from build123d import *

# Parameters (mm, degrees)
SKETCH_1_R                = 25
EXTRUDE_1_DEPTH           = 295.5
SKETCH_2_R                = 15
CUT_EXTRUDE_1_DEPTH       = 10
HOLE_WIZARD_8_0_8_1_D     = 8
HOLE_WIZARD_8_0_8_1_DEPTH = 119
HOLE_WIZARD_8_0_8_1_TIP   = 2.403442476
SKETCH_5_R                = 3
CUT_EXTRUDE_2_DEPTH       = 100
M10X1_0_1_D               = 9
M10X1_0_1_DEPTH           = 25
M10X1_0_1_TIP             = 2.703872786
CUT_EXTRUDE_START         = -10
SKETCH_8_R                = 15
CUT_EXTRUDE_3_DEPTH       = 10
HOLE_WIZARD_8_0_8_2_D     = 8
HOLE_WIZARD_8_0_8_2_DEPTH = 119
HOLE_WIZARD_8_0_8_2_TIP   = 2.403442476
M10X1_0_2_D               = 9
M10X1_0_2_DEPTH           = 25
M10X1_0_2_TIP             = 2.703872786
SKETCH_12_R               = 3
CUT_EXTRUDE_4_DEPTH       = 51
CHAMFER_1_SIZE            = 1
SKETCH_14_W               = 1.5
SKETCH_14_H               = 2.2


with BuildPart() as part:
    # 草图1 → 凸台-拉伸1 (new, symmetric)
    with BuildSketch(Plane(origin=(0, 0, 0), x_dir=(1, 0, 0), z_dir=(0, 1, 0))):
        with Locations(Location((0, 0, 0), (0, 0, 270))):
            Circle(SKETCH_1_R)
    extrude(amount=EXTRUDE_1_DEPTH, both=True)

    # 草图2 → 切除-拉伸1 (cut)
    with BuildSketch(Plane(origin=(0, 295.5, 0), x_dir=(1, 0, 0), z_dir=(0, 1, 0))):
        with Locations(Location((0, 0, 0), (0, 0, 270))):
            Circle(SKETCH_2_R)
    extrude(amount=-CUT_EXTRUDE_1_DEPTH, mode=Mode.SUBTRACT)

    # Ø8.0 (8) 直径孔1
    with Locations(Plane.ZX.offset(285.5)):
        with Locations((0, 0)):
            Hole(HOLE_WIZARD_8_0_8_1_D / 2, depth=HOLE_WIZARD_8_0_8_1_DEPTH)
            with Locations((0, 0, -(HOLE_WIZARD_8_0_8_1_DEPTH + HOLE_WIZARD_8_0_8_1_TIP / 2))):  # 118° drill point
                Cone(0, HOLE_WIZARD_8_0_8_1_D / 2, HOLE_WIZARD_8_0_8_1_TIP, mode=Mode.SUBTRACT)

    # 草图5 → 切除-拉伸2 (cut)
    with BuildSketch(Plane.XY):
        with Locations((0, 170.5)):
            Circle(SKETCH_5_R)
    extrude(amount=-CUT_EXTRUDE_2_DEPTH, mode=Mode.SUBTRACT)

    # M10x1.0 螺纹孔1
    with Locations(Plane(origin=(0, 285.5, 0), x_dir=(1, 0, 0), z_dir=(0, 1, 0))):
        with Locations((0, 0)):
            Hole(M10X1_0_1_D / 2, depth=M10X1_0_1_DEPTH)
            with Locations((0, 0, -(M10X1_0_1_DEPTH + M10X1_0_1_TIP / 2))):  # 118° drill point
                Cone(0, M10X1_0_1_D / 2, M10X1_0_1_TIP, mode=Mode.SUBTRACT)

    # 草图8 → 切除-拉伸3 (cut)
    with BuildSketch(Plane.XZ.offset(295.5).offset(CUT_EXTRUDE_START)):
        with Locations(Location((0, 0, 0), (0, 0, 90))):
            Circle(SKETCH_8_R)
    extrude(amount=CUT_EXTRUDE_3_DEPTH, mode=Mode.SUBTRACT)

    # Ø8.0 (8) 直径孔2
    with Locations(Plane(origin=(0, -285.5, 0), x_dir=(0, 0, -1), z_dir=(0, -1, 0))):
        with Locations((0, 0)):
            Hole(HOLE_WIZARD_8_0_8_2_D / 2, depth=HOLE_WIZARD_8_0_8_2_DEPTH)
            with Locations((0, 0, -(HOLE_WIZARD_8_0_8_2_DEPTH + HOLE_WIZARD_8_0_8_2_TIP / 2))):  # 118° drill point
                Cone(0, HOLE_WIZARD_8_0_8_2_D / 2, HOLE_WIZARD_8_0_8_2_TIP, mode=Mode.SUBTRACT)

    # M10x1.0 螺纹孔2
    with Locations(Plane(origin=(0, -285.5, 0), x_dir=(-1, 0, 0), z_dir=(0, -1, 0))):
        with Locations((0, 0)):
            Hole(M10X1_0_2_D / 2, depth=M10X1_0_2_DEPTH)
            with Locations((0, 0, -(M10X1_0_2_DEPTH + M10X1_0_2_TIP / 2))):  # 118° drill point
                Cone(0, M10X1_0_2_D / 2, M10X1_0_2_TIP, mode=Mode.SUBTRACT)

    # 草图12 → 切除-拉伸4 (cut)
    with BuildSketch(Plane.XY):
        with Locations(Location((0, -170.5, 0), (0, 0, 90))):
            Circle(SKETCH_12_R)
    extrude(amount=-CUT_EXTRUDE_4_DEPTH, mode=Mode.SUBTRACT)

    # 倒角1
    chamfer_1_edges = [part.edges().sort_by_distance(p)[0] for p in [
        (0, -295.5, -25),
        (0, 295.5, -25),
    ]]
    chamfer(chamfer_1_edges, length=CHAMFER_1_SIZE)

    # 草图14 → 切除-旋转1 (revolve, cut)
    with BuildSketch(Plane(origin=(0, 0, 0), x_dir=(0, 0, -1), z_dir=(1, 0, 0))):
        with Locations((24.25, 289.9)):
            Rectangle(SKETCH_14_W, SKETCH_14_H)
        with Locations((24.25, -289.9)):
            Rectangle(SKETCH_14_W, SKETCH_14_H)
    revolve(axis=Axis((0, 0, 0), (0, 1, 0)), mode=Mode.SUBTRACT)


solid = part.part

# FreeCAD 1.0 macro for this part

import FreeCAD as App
import Part
import Sketcher
from FreeCAD import Vector


def edges_at(feature, points):
    """Names of the edges that pass closest to the given points."""
    edges = feature.Shape.Edges
    near = lambda p: min(range(len(edges)), key=lambda i: edges[i].distToShape(Part.Vertex(*p))[0])
    return sorted({f"Edge{near(p) + 1}" for p in points})


def add_polygon(sketch, points):
    """Adds a closed chain of lines whose ends are joined by coincident constraints."""
    first, n = sketch.GeometryCount, len(points)
    for a, b in zip(points, points[1:] + points[:1]):
        sketch.addGeometry(Part.LineSegment(App.Vector(*a, 0), App.Vector(*b, 0)), False)
    for i in range(n):
        sketch.addConstraint(Sketcher.Constraint("Coincident", first + i, 2, first + (i + 1) % n, 1))

doc = App.newDocument("Part")
body = doc.addObject("PartDesign::Body", "Body")

sketch1 = body.newObject("Sketcher::SketchObject", "Sketch")
sketch1.AttachmentSupport = (doc.getObject("XZ_Plane"), [""])
sketch1.MapMode = "FlatFace"
sketch1.addGeometry(Part.Circle(Vector(0, 0, 0), Vector(0, 0, 1), 25), False)
sketch1.addConstraint([
    Sketcher.Constraint("Coincident", 0, 3, -1, 1),
    Sketcher.Constraint("Diameter", 0, 50.0),
])
pad1 = body.newObject("PartDesign::Pad", "Pad")
pad1.Profile = sketch1
pad1.Length = 591
pad1.Midplane = True

sketch2 = body.newObject("Sketcher::SketchObject", "Sketch001")
sketch2.AttachmentSupport = (doc.getObject("XZ_Plane"), [""])
sketch2.MapMode = "FlatFace"
sketch2.AttachmentOffset = App.Placement(Vector(0, 0, -295.5), App.Rotation())
sketch2.addGeometry(Part.Circle(Vector(0, 0, 0), Vector(0, 0, 1), 15), False)
sketch2.addConstraint([
    Sketcher.Constraint("Coincident", 0, 3, -1, 1),
    Sketcher.Constraint("Diameter", 0, 30.0),
])
pocket1 = body.newObject("PartDesign::Pocket", "Pocket")
pocket1.Profile = sketch2
pocket1.Length = 10
pocket1.Reversed = True

sketch3 = body.newObject("Sketcher::SketchObject", "Sketch002")
sketch3.AttachmentSupport = (doc.getObject("XZ_Plane"), [""])
sketch3.MapMode = "FlatFace"
sketch3.AttachmentOffset = App.Placement(Vector(0, 0, -285.5), App.Rotation())
sketch3.addGeometry(Part.Circle(Vector(0, 0, 0), Vector(0, 0, 1), 4), False)
sketch3.addConstraint([
    Sketcher.Constraint("Coincident", 0, 3, -1, 1),
    Sketcher.Constraint("Diameter", 0, 8.0),
])
doc.recompute()
hole = body.newObject("PartDesign::Hole", "Hole")
hole.Profile = sketch3
hole.ThreadType = "None"
hole.Diameter = 8
hole.DepthType = "Dimension"
hole.Depth = 119
hole.DrillPoint = "Angled"
hole.DrillPointAngle = 118
hole.Reversed = True

sketch4 = body.newObject("Sketcher::SketchObject", "Sketch003")
sketch4.AttachmentSupport = (doc.getObject("XY_Plane"), [""])
sketch4.MapMode = "FlatFace"
sketch4.addGeometry(Part.Circle(Vector(0, 170.5, 0), Vector(0, 0, 1), 3), False)
sketch4.addConstraint([
    Sketcher.Constraint("PointOnObject", 0, 3, -2),
    Sketcher.Constraint("Diameter", 0, 6.0),
    Sketcher.Constraint("DistanceY", -1, 1, 0, 3, 170.5),
])
pocket2 = body.newObject("PartDesign::Pocket", "Pocket001")
pocket2.Profile = sketch4
pocket2.Length = 100

sketch5 = body.newObject("Sketcher::SketchObject", "Sketch004")
sketch5.AttachmentSupport = (doc.getObject("XZ_Plane"), [""])
sketch5.MapMode = "FlatFace"
sketch5.AttachmentOffset = App.Placement(Vector(0, 0, -285.5), App.Rotation())
sketch5.addGeometry(Part.Circle(Vector(0, 0, 0), Vector(0, 0, 1), 4.5), False)
sketch5.addConstraint([
    Sketcher.Constraint("Coincident", 0, 3, -1, 1),
    Sketcher.Constraint("Diameter", 0, 9.0),
])
doc.recompute()
hole2 = body.newObject("PartDesign::Hole", "Hole001")
hole2.Profile = sketch5
hole2.ThreadType = "None"
hole2.Diameter = 9
hole2.DepthType = "Dimension"
hole2.Depth = 25
hole2.DrillPoint = "Angled"
hole2.DrillPointAngle = 118
hole2.Reversed = True

sketch6 = body.newObject("Sketcher::SketchObject", "Sketch005")
sketch6.AttachmentSupport = (doc.getObject("XZ_Plane"), [""])
sketch6.MapMode = "FlatFace"
sketch6.AttachmentOffset = App.Placement(Vector(0, 0, 285.5), App.Rotation())
sketch6.addGeometry(Part.Circle(Vector(0, 0, 0), Vector(0, 0, 1), 15), False)
sketch6.addConstraint([
    Sketcher.Constraint("Coincident", 0, 3, -1, 1),
    Sketcher.Constraint("Diameter", 0, 30.0),
])
pocket3 = body.newObject("PartDesign::Pocket", "Pocket002")
pocket3.Profile = sketch6
pocket3.Length = 10
pocket3.Reversed = True

sketch7 = body.newObject("Sketcher::SketchObject", "Sketch006")
sketch7.AttachmentSupport = (doc.getObject("XZ_Plane"), [""])
sketch7.MapMode = "FlatFace"
sketch7.AttachmentOffset = App.Placement(Vector(0, 0, 285.5), App.Rotation())
sketch7.addGeometry(Part.Circle(Vector(0, 0, 0), Vector(0, 0, 1), 4), False)
sketch7.addConstraint([
    Sketcher.Constraint("Coincident", 0, 3, -1, 1),
    Sketcher.Constraint("Diameter", 0, 8.0),
])
doc.recompute()
hole3 = body.newObject("PartDesign::Hole", "Hole002")
hole3.Profile = sketch7
hole3.ThreadType = "None"
hole3.Diameter = 8
hole3.DepthType = "Dimension"
hole3.Depth = 119
hole3.DrillPoint = "Angled"
hole3.DrillPointAngle = 118

sketch8 = body.newObject("Sketcher::SketchObject", "Sketch007")
sketch8.AttachmentSupport = (doc.getObject("XZ_Plane"), [""])
sketch8.MapMode = "FlatFace"
sketch8.AttachmentOffset = App.Placement(Vector(0, 0, 285.5), App.Rotation())
sketch8.addGeometry(Part.Circle(Vector(0, 0, 0), Vector(0, 0, 1), 4.5), False)
sketch8.addConstraint([
    Sketcher.Constraint("Coincident", 0, 3, -1, 1),
    Sketcher.Constraint("Diameter", 0, 9.0),
])
doc.recompute()
hole4 = body.newObject("PartDesign::Hole", "Hole003")
hole4.Profile = sketch8
hole4.ThreadType = "None"
hole4.Diameter = 9
hole4.DepthType = "Dimension"
hole4.Depth = 25
hole4.DrillPoint = "Angled"
hole4.DrillPointAngle = 118

sketch9 = body.newObject("Sketcher::SketchObject", "Sketch008")
sketch9.AttachmentSupport = (doc.getObject("XY_Plane"), [""])
sketch9.MapMode = "FlatFace"
sketch9.addGeometry(Part.Circle(Vector(0, -170.5, 0), Vector(0, 0, 1), 3), False)
sketch9.addConstraint([
    Sketcher.Constraint("PointOnObject", 0, 3, -2),
    Sketcher.Constraint("Diameter", 0, 6.0),
    Sketcher.Constraint("DistanceY", 0, 3, -1, 1, 170.5),
])
pocket4 = body.newObject("PartDesign::Pocket", "Pocket003")
pocket4.Profile = sketch9
pocket4.Length = 51
doc.recompute()

chamfer = body.newObject("PartDesign::Chamfer", "Chamfer")
chamfer.Base = (pocket4, edges_at(pocket4, [(0, -295.5, -25), (0, 295.5, -25)]))
chamfer.Size = 1

sketch10 = body.newObject("Sketcher::SketchObject", "Sketch009")
sketch10.AttachmentSupport = (doc.getObject("YZ_Plane"), [""])
sketch10.MapMode = "FlatFace"
add_polygon(sketch10, [(291, -23.5), (288.8, -23.5), (288.8, -25), (291, -25)])
add_polygon(sketch10, [(-288.8, -23.5), (-291, -23.5), (-291, -25), (-288.8, -25)])
sketch10.addConstraint([
    Sketcher.Constraint("Horizontal", 0),
    Sketcher.Constraint("Vertical", 1),
    Sketcher.Constraint("Horizontal", 2),
    Sketcher.Constraint("Vertical", 3),
    Sketcher.Constraint("Horizontal", 4),
    Sketcher.Constraint("Vertical", 5),
    Sketcher.Constraint("Horizontal", 6),
    Sketcher.Constraint("Vertical", 7),
    Sketcher.Constraint("Symmetric", 3, 2, 4, 2, -2),
    Sketcher.Constraint("Symmetric", 1, 2, 6, 2, -2),
    Sketcher.Constraint("DistanceX", 0, 2, 0, 1, 2.2),
    Sketcher.Constraint("DistanceY", 1, 2, 1, 1, 1.5),
    Sketcher.Constraint("DistanceY", 1, 2, -1, 1, 25.0),
    Sketcher.Constraint("DistanceX", -1, 1, 2, 2, 291.0),
])
groove = body.newObject("PartDesign::Groove", "Groove")
groove.Profile = sketch10
groove.ReferenceAxis = (sketch10, ["H_Axis"])
groove.Angle = 360

doc.recompute()
